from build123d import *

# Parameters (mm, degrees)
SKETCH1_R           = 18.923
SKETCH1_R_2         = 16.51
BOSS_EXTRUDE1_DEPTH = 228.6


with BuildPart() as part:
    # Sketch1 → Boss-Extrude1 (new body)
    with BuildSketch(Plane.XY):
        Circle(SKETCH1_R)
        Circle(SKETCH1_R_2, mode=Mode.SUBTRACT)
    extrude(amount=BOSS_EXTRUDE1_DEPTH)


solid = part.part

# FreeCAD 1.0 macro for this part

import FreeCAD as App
import Part
import Sketcher

V = App.Vector
Q = App.Units.Quantity

doc = App.newDocument("Part")
body = doc.addObject("PartDesign::Body", "Body")

# Sketch on XY plane
sketch1 = body.newObject("Sketcher::SketchObject", "Sketch")
sketch1.AttachmentSupport = (doc.getObject("XY_Plane"), [""])
sketch1.MapMode = "FlatFace"
sketch1.addGeometry([
    Part.Circle(V(0, 0, 0), V(0, 0, 1), 18.923),
    Part.Circle(V(0, 0, 0), V(0, 0, 1), 16.51),
], False)
sketch1.addConstraint([
    Sketcher.Constraint("Coincident", 0, 3, -1, 1),
    Sketcher.Constraint("Coincident", 1, 3, -1, 1),
    Sketcher.Constraint("Diameter", 1, Q("1.3 in")),
    Sketcher.Constraint("Diameter", 0, Q("1.49 in")),
])
pad1 = body.newObject("PartDesign::Pad", "Pad")
pad1.Profile = sketch1
pad1.Length = Q("9 in")

doc.recompute()
